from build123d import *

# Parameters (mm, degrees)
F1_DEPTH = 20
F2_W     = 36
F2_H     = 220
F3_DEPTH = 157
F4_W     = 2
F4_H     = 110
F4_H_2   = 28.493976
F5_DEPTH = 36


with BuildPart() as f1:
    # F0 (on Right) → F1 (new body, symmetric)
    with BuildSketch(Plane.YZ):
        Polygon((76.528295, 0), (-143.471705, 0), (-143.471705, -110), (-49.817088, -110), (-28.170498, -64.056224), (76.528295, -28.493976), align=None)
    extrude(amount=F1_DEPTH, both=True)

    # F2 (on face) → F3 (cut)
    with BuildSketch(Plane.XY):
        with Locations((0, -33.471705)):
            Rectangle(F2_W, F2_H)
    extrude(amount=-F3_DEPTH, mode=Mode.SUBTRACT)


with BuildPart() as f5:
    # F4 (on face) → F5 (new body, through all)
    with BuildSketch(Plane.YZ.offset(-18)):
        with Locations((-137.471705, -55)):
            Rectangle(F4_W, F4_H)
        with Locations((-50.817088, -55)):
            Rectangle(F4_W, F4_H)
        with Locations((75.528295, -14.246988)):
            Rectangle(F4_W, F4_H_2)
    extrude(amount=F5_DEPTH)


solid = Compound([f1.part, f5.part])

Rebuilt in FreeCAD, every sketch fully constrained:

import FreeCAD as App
import Part
import Sketcher
from FreeCAD import Vector


def add_polygon(sketch, points):
    """Adds a closed chain of lines whose ends are joined by coincident constraints."""
    first, n = sketch.GeometryCount, len(points)
    for a, b in zip(points, points[1:] + points[:1]):
        sketch.addGeometry(Part.LineSegment(App.Vector(*a, 0), App.Vector(*b, 0)), False)
    for i in range(n):
        sketch.addConstraint(Sketcher.Constraint("Coincident", first + i, 2, first + (i + 1) % n, 1))

doc = App.newDocument("Part")
body = doc.addObject("PartDesign::Body", "Body")
body.AllowCompound = True

# Sketch on YZ plane
sketch1 = body.newObject("Sketcher::SketchObject", "Sketch")
sketch1.AttachmentSupport = (doc.getObject("YZ_Plane"), [""])
sketch1.MapMode = "FlatFace"
add_polygon(sketch1, [(76.528295, 0), (-143.471705, 0), (-143.471705, -110), (-49.817088, -110), (-28.170498, -64.056224), (76.528295, -28.493976)])  # lines 0-5
sketch1.addConstraint([
    Sketcher.Constraint("Horizontal", 0),
    Sketcher.Constraint("Vertical", 1),
    Sketcher.Constraint("Horizontal", 2),
    Sketcher.Constraint("Vertical", 5),
    Sketcher.Constraint("PointOnObject", 0, 2, -1),
    Sketcher.Constraint("DistanceX", 0, 2, 0, 1, 220.0),
    Sketcher.Constraint("DistanceY", 1, 2, 1, 1, 110.0),
    Sketcher.Constraint("DistanceX", 2, 1, 2, 2, 93.654617),
    Sketcher.Constraint("DistanceY", 5, 1, 5, 2, 28.493976),
    Sketcher.Constraint("DistanceX", 2, 2, 3, 2, 21.64659),
    Sketcher.Constraint("Distance", 3, 50.787847),
    Sketcher.Constraint("DistanceX", 0, 2, -1, 1, 143.471705),
])
pad1 = body.newObject("PartDesign::Pad", "Pad")
pad1.Profile = sketch1
pad1.Length = 40
pad1.Midplane = True

# Sketch on XY plane
sketch2 = body.newObject("Sketcher::SketchObject", "Sketch001")
sketch2.AttachmentSupport = (doc.getObject("XY_Plane"), [""])
sketch2.MapMode = "FlatFace"
add_polygon(sketch2, [(-18, 76.528295), (-18, -143.471705), (18, -143.471705), (18, 76.528295)])  # lines 0-3
sketch2.addConstraint([
    Sketcher.Constraint("Vertical", 0),
    Sketcher.Constraint("Horizontal", 1),
    Sketcher.Constraint("Vertical", 2),
    Sketcher.Constraint("Horizontal", 3),
    Sketcher.Constraint("DistanceX", 1, 1, 1, 2, 36.0),
    Sketcher.Constraint("DistanceY", 0, 2, 0, 1, 220.0),
    Sketcher.Constraint("DistanceX", 0, 2, -1, 1, 18.0),
    Sketcher.Constraint("DistanceY", 0, 2, -1, 1, 143.471705),
])
pocket1 = body.newObject("PartDesign::Pocket", "Pocket")
pocket1.Profile = sketch2
pocket1.Length = 157
body2 = doc.addObject("PartDesign::Body", "Body001")
body2.AllowCompound = True

# Sketch on YZ plane
sketch3 = body2.newObject("Sketcher::SketchObject", "Sketch002")
sketch3.AttachmentSupport = (doc.getObject("YZ_Plane001"), [""])
sketch3.MapMode = "FlatFace"
sketch3.AttachmentOffset = App.Placement(Vector(0, 0, -18), App.Rotation())
add_polygon(sketch3, [(-138.471705, 0), (-138.471705, -110), (-136.471705, -110), (-136.471705, 0)])  # lines 0-3
add_polygon(sketch3, [(-51.817088, 0), (-51.817088, -110), (-49.817088, -110), (-49.817088, 0)])  # lines 4-7
add_polygon(sketch3, [(74.528295, 0), (74.528295, -28.493976), (76.528295, -28.493976), (76.528295, 0)])  # lines 8-11
sketch3.addConstraint([
    Sketcher.Constraint("Vertical", 0),
    Sketcher.Constraint("Horizontal", 1),
    Sketcher.Constraint("Vertical", 2),
    Sketcher.Constraint("Horizontal", 3),
    Sketcher.Constraint("Vertical", 4),
    Sketcher.Constraint("Horizontal", 5),
    Sketcher.Constraint("Vertical", 6),
    Sketcher.Constraint("Horizontal", 7),
    Sketcher.Constraint("Vertical", 8),
    Sketcher.Constraint("Horizontal", 9),
    Sketcher.Constraint("Vertical", 10),
    Sketcher.Constraint("Horizontal", 11),
    Sketcher.Constraint("PointOnObject", 2, 2, -1),
    Sketcher.Constraint("PointOnObject", 6, 2, -1),
    Sketcher.Constraint("PointOnObject", 10, 2, -1),
    Sketcher.Constraint("Horizontal", 1, 2, 4, 2),
    Sketcher.Constraint("Equal", 3, 5),
    Sketcher.Constraint("Equal", 7, 9),
    Sketcher.Constraint("DistanceX", 1, 1, 1, 2, 2.0),
    Sketcher.Constraint("DistanceY", 0, 2, 0, 1, 110.0),
    Sketcher.Constraint("DistanceX", 2, 2, 8, 2, 211.0),
    Sketcher.Constraint("DistanceY", 8, 2, 8, 1, 28.493976),
    Sketcher.Constraint("DistanceX", 0, 2, -1, 1, 138.471705),
    Sketcher.Constraint("DistanceX", 4, 2, -1, 1, 51.817088),
])
pad2 = body2.newObject("PartDesign::Pad", "Pad001")
pad2.Profile = sketch3
pad2.Length = 36

doc.recompute()
